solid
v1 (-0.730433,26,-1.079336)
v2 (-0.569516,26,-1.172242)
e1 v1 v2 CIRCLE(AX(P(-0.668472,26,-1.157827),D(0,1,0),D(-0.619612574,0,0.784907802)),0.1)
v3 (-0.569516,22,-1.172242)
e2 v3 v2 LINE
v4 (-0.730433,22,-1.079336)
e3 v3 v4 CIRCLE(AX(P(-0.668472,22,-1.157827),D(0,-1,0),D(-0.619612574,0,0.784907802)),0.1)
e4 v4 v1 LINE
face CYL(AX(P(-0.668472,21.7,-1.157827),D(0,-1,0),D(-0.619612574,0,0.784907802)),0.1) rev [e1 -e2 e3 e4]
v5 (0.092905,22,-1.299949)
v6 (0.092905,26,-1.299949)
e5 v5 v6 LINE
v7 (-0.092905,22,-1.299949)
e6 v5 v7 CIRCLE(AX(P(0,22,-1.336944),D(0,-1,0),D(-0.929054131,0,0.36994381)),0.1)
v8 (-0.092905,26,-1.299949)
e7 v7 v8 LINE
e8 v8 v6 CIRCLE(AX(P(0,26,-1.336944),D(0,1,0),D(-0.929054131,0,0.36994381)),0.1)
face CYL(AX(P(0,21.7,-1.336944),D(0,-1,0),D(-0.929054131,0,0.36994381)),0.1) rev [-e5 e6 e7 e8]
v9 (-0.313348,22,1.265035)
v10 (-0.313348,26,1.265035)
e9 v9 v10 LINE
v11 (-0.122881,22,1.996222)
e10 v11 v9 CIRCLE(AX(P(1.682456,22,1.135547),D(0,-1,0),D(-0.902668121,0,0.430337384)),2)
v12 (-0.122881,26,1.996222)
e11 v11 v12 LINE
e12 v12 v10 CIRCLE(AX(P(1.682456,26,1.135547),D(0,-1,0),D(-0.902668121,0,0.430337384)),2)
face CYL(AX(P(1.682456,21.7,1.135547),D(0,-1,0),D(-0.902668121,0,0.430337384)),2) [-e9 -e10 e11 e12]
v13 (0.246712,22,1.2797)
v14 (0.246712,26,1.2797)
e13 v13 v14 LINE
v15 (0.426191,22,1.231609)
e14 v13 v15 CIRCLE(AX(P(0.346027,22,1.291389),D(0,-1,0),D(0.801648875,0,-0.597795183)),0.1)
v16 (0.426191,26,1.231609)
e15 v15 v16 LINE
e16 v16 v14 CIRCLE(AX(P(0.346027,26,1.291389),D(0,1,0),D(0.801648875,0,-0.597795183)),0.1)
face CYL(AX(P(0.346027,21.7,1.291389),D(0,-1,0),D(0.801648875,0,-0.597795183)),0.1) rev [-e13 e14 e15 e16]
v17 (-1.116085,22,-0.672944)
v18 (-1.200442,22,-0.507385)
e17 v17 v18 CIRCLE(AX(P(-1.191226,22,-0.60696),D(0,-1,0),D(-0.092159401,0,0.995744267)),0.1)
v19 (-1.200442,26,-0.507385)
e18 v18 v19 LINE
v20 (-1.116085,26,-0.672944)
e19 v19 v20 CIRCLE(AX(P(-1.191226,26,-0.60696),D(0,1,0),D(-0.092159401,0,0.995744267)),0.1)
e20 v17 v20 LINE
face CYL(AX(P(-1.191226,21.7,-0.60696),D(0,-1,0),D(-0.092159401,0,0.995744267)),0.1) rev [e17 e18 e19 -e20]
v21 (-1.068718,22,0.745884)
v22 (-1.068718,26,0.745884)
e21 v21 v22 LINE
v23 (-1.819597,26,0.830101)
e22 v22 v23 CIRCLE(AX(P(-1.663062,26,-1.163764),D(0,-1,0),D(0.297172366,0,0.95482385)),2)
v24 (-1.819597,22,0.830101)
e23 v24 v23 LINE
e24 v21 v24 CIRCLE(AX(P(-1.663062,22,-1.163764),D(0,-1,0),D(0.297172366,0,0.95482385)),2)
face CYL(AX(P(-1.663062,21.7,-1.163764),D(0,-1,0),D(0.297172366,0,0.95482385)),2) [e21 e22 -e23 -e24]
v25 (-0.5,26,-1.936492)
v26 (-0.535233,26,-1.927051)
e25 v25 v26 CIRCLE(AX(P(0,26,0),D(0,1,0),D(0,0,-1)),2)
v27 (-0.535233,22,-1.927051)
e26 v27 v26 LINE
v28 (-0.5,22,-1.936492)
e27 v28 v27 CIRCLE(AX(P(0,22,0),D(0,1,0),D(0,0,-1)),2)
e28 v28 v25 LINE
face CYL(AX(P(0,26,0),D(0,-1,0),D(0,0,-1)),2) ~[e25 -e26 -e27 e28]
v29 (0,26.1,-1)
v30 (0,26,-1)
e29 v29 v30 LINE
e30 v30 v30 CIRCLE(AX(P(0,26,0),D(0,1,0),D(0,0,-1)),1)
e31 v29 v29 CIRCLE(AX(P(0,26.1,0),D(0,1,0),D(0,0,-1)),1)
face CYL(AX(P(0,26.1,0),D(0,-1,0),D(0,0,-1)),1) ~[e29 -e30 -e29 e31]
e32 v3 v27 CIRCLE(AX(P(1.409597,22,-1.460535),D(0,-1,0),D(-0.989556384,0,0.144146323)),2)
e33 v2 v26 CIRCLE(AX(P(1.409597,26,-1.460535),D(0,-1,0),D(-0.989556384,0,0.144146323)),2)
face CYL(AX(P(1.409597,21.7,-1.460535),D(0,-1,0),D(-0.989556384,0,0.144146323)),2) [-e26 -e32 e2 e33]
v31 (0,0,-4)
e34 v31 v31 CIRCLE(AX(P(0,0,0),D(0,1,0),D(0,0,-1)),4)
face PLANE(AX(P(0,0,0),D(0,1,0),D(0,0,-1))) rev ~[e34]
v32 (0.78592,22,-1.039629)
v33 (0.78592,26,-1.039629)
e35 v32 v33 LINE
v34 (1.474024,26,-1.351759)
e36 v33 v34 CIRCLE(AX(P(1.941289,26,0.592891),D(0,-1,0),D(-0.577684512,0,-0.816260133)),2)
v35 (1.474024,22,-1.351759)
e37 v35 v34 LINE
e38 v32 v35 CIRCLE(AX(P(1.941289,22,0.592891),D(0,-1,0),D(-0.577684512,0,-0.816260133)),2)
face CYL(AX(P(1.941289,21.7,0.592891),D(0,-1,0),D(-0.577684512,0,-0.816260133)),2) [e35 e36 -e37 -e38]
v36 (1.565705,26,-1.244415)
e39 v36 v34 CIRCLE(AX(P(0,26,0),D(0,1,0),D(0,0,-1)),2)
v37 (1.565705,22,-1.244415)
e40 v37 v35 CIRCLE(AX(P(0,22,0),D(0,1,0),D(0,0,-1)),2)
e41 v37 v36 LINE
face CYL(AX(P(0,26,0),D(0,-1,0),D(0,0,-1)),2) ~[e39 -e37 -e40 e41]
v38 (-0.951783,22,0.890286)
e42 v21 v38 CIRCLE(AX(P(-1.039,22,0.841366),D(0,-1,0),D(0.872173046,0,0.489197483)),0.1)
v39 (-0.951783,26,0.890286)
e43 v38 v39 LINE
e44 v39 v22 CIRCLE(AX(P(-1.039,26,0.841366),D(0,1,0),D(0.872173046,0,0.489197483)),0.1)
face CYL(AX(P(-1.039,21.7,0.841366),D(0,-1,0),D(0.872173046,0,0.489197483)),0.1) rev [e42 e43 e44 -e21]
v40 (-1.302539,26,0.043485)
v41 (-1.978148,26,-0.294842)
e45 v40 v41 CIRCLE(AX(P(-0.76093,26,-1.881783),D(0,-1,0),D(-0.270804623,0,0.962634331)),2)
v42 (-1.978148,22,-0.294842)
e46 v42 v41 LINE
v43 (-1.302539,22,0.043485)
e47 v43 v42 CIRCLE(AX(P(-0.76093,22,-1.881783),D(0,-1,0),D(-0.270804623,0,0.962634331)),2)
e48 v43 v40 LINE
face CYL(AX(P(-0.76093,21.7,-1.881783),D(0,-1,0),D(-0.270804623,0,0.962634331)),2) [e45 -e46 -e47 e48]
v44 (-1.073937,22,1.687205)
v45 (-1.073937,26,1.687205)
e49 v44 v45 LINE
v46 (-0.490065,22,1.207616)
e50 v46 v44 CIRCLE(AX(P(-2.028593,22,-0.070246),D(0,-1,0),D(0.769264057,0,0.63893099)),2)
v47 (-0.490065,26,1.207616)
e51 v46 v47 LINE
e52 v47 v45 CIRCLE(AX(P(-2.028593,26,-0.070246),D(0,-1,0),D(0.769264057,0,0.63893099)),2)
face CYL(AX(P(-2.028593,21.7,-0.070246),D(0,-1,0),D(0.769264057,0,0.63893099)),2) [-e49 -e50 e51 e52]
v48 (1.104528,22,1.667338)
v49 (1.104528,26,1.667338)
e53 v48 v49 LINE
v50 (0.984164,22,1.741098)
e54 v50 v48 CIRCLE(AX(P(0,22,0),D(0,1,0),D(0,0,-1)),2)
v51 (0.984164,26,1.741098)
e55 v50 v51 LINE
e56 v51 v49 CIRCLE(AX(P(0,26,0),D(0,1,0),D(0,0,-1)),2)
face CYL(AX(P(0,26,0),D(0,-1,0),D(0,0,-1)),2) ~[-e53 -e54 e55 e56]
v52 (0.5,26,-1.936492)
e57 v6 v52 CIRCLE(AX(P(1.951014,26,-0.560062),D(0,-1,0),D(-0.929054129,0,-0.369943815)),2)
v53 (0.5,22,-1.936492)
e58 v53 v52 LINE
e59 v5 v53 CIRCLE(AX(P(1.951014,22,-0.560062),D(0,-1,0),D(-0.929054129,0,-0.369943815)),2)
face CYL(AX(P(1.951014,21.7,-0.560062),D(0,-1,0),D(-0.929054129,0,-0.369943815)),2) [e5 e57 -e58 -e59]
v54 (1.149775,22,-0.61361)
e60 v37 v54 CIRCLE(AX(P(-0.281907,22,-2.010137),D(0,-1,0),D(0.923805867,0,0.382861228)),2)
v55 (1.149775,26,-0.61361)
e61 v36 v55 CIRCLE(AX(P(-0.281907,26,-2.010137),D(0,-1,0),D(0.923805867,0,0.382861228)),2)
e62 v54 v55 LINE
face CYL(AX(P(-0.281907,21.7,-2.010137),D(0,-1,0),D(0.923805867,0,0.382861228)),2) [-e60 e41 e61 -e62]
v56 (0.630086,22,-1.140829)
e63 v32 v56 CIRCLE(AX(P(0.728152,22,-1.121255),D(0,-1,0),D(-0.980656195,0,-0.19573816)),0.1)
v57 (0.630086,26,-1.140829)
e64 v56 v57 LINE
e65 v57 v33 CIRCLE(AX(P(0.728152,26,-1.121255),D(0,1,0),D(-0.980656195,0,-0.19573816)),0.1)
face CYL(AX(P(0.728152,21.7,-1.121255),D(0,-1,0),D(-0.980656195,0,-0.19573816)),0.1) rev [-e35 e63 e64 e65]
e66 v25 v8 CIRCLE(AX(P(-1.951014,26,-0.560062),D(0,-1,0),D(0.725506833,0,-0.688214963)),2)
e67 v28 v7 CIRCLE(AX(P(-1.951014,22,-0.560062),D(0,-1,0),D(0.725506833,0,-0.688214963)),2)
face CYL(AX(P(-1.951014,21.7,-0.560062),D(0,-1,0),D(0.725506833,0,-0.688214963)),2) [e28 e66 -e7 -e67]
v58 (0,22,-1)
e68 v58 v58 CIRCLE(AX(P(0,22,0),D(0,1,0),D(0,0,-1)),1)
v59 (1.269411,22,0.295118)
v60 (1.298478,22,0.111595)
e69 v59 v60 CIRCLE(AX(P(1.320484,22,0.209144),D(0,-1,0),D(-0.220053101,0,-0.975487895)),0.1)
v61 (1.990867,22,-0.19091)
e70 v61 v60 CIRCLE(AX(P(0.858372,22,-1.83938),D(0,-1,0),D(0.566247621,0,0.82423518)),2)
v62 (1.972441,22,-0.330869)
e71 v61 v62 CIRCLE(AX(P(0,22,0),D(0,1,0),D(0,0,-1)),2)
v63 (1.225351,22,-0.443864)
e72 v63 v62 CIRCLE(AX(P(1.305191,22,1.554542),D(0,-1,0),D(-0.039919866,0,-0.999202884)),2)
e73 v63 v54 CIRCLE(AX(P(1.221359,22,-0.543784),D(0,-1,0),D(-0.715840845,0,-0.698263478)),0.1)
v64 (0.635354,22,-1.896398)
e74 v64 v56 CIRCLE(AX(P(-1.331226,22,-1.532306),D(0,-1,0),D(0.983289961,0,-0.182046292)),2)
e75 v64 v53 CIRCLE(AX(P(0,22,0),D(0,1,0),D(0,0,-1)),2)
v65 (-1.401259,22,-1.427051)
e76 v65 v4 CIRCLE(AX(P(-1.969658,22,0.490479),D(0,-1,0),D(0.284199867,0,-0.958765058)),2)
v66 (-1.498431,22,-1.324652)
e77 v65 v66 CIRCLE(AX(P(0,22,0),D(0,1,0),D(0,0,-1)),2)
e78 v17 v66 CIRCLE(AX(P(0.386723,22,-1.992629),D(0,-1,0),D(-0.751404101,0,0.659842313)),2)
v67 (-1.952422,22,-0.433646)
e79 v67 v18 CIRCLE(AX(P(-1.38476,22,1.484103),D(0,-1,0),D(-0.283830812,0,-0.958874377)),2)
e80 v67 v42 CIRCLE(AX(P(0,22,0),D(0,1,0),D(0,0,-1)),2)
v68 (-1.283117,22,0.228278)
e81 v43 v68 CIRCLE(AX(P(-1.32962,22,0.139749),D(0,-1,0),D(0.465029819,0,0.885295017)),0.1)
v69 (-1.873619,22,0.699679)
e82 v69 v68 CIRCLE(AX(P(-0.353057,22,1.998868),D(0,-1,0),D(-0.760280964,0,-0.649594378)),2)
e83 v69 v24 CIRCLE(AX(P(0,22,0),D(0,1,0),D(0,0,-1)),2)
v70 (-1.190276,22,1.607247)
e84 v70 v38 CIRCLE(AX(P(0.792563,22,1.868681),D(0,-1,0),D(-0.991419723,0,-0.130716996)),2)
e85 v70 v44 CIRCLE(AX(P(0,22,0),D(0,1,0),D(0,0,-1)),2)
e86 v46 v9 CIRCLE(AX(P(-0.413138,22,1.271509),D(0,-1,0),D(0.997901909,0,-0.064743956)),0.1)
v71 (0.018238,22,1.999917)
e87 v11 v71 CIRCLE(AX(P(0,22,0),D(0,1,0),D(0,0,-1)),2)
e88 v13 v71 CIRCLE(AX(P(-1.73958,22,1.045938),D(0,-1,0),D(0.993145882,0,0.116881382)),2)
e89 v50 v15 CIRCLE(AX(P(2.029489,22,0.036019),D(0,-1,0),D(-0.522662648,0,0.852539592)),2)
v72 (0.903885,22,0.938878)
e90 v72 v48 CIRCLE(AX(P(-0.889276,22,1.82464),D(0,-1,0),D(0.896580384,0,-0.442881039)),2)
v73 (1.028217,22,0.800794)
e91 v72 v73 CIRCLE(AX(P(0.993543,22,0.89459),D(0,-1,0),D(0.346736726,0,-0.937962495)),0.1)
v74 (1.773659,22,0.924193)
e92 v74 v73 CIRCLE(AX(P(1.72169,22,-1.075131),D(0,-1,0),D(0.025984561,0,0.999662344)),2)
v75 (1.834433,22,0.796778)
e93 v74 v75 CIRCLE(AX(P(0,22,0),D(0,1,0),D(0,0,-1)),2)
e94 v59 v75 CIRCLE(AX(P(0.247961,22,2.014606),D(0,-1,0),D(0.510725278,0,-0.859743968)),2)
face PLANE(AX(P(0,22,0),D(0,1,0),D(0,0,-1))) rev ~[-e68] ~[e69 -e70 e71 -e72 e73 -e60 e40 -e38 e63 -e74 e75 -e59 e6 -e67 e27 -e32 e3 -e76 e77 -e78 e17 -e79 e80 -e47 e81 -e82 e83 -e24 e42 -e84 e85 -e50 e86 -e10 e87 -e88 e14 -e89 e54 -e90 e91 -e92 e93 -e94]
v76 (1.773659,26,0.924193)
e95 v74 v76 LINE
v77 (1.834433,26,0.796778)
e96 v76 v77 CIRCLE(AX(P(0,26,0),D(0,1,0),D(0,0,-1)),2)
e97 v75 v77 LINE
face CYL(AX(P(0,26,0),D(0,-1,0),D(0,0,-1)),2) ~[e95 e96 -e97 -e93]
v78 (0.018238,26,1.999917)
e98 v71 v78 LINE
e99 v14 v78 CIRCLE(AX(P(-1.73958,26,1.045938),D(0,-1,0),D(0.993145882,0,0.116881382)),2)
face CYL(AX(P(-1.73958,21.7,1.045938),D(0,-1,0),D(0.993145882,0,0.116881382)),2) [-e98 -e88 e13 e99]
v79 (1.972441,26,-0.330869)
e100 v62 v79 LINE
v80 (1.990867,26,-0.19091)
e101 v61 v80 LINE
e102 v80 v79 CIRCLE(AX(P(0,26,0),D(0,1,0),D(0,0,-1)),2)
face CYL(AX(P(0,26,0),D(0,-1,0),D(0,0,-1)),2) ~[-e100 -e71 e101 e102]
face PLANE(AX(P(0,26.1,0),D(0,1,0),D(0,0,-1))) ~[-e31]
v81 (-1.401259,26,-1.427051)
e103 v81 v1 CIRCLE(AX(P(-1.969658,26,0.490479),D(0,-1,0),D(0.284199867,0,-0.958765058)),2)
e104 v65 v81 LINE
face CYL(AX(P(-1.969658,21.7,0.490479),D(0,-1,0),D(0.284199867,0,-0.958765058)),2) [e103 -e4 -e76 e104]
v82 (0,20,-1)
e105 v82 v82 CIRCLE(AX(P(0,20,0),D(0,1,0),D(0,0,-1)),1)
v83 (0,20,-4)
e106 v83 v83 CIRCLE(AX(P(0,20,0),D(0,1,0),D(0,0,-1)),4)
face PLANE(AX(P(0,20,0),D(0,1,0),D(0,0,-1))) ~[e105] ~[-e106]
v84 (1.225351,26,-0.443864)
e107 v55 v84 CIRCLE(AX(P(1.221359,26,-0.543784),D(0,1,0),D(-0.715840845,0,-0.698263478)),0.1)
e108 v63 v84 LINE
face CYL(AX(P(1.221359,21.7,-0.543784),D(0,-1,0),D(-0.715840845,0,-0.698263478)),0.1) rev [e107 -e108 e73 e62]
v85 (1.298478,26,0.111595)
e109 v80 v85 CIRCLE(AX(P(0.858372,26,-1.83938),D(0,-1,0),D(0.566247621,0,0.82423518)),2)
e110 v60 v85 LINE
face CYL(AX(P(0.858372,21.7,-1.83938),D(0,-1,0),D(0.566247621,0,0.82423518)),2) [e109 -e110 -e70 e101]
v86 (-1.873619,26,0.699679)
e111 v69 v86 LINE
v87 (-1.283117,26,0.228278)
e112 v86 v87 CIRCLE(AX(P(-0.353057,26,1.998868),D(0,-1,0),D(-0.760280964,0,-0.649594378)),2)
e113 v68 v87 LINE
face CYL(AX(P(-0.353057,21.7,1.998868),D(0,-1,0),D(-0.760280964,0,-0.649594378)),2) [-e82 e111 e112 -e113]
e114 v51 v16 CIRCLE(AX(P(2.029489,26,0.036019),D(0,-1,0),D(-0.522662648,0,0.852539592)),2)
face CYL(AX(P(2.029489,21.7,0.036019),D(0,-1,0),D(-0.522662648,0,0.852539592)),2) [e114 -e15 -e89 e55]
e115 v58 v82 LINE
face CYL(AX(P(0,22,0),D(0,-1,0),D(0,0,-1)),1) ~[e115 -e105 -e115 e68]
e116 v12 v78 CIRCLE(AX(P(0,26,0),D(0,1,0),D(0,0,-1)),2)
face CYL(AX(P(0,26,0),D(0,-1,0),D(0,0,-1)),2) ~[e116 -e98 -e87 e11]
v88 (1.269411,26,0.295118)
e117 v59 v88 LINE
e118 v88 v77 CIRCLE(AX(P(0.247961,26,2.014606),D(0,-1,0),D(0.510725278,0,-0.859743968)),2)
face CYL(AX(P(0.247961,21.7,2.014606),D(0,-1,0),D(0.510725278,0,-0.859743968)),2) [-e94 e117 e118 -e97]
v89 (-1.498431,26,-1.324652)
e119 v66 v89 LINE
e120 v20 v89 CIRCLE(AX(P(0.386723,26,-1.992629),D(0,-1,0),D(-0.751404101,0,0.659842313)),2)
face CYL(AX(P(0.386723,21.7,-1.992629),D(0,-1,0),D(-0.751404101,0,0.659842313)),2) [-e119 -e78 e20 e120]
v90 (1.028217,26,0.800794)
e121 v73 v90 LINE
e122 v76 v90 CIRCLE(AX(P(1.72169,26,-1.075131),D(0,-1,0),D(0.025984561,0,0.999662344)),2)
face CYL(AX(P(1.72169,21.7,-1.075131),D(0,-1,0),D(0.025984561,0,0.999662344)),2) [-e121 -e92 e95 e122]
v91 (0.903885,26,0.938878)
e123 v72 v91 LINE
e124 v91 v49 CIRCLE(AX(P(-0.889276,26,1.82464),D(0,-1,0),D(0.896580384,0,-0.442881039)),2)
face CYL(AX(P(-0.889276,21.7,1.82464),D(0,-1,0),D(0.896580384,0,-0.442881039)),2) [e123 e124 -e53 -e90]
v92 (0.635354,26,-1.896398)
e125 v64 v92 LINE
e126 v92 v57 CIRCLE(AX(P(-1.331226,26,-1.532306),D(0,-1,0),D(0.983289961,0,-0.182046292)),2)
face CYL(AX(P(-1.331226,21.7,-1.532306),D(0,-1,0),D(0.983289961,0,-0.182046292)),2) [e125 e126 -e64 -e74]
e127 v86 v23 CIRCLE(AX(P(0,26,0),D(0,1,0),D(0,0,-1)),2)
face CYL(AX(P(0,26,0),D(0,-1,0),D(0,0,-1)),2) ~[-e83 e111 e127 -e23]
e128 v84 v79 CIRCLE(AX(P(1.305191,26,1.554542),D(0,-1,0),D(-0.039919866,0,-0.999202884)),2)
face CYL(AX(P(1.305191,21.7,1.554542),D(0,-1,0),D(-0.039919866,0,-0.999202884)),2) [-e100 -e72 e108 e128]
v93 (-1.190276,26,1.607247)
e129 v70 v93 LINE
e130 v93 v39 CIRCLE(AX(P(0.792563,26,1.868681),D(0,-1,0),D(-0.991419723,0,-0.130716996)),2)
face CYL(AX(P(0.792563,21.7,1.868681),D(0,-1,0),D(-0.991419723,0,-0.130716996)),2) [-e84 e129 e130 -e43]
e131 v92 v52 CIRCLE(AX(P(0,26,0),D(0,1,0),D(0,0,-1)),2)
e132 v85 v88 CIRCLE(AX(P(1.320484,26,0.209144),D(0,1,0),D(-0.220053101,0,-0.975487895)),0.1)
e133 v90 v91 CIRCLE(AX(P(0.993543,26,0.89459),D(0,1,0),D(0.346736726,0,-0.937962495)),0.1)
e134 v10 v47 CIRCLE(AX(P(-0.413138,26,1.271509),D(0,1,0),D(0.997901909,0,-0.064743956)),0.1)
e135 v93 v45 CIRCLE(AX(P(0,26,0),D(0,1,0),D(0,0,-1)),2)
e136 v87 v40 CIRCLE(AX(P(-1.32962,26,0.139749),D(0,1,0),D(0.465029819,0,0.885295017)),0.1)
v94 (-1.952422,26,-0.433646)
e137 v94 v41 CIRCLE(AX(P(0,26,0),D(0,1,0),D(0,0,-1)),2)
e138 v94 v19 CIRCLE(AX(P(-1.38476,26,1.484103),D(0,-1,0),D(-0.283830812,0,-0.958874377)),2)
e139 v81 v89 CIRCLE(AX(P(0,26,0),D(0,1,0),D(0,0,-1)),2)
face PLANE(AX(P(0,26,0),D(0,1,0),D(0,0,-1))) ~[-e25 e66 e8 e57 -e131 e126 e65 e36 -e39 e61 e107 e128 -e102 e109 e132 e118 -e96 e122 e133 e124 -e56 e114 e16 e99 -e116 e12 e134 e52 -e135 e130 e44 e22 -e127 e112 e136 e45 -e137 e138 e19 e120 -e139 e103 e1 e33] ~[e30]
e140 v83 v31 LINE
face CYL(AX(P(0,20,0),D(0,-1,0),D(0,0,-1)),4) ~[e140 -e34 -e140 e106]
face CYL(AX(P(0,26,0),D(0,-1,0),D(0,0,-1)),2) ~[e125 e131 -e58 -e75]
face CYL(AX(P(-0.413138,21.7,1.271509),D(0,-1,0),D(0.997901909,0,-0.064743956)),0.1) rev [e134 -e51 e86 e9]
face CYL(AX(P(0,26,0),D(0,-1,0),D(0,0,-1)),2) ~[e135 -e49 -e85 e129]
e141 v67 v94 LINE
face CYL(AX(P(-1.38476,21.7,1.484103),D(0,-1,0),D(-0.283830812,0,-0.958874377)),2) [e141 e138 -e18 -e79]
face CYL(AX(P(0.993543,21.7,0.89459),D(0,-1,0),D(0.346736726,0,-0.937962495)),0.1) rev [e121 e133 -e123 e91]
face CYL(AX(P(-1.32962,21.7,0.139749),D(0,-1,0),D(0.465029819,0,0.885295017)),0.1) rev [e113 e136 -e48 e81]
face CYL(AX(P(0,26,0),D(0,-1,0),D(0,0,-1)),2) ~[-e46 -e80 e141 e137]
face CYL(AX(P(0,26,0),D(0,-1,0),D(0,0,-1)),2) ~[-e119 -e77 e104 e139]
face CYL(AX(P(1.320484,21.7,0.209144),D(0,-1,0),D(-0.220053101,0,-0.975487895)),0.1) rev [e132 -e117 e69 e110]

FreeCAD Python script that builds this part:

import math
import FreeCAD as App
import Part
import Sketcher
from FreeCAD import Vector


def add_polygon(sketch, points):
    """Adds a closed chain of lines whose ends are joined by coincident constraints."""
    first, n = sketch.GeometryCount, len(points)
    for a, b in zip(points, points[1:] + points[:1]):
        sketch.addGeometry(Part.LineSegment(App.Vector(*a, 0), App.Vector(*b, 0)), False)
    for i in range(n):
        sketch.addConstraint(Sketcher.Constraint("Coincident", first + i, 2, first + (i + 1) % n, 1))

doc = App.newDocument("Part")
body = doc.addObject("PartDesign::Body", "Body")

sketch1 = doc.addObject("Sketcher::SketchObject", "Sketch")
body.addObject(sketch1)
sketch1.AttachmentSupport = (doc.XY_Plane, [""])
sketch1.MapMode = "FlatFace"
add_polygon(sketch1, [(0, 26.1), (0, 0), (4, 0), (4, 20), (1, 20), (1, 22), (2, 22), (2, 26), (1, 26), (1, 26.1)])
sketch1.addConstraint([
    Sketcher.Constraint("Vertical", 0),
    Sketcher.Constraint("Horizontal", 1),
    Sketcher.Constraint("Vertical", 2),
    Sketcher.Constraint("Horizontal", 3),
    Sketcher.Constraint("Vertical", 4),
    Sketcher.Constraint("Horizontal", 5),
    Sketcher.Constraint("Vertical", 6),
    Sketcher.Constraint("Horizontal", 7),
    Sketcher.Constraint("Vertical", 8),
    Sketcher.Constraint("Horizontal", 9),
    Sketcher.Constraint("Coincident", 0, 2, -1, 1),
    Sketcher.Constraint("Vertical", 4, 2, 7, 2),
    Sketcher.Constraint("Equal", 7, 9),
    Sketcher.Constraint("Equal", 1, 6),
    Sketcher.Constraint("DistanceX", 1, 1, 1, 2, 4.0),
    Sketcher.Constraint("DistanceX", 3, 2, 3, 1, 3.0),
    Sketcher.Constraint("DistanceY", 2, 1, 2, 2, 20.0),
    Sketcher.Constraint("DistanceY", 4, 1, 4, 2, 2.0),
    Sketcher.Constraint("DistanceY", 0, 2, 0, 1, 26.1),
])
revolution = doc.addObject("PartDesign::Revolution", "Revolution")
body.addObject(revolution)
revolution.Profile = sketch1
revolution.ReferenceAxis = (sketch1, ["V_Axis"])
revolution.Angle = 360

sketch2 = doc.addObject("Sketcher::SketchObject", "Sketch001")
body.addObject(sketch2)
sketch2.AttachmentSupport = (doc.XZ_Plane, [""])
sketch2.MapMode = "FlatFace"
sketch2.AttachmentOffset = App.Placement(Vector(0, 0, -21.7), App.Rotation())
sketch2.addGeometry([
    Part.ArcOfCircle(Part.Circle(Vector(1.95, -0.56, 0), Vector(0, 0, 1), 2), math.radians(-158), math.radians(-137)),
    Part.ArcOfCircle(Part.Circle(Vector(0, 0, 0), Vector(0, 0, 1), 2), math.radians(-104), math.radians(-76)),
    Part.ArcOfCircle(Part.Circle(Vector(-1.95, -0.56, 0), Vector(0, 0, 1), 2), math.radians(-43), math.radians(-22)),
    Part.ArcOfCircle(Part.Circle(Vector(0, -1.34, 0), Vector(0, 0, 1), 0.1), math.radians(22), math.radians(158)),
], False)
sketch2.addConstraint([
    Sketcher.Constraint("Coincident", 0, 2, 1, 2),
    Sketcher.Constraint("Coincident", 1, 1, 2, 1),
    Sketcher.Constraint("Tangent", 2, 2, 3, 2),
    Sketcher.Constraint("Tangent", 3, 1, 0, 1),
    Sketcher.Constraint("Coincident", 1, 3, -1, 1),
    Sketcher.Constraint("Equal", 0, 1),
    Sketcher.Constraint("Equal", 1, 2),
    Sketcher.Constraint("Symmetric", 0, 3, 2, 3, -2),
    Sketcher.Constraint("Radius", 0, 2.0),
    Sketcher.Constraint("Radius", 3, 0.1),
    Sketcher.Constraint("DistanceX", 1, 1, 0, 2, 1.0),
    Sketcher.Constraint("DistanceY", 0, 3, -1, 1, 0.560062),
])
pocket1 = doc.addObject("PartDesign::Pocket", "Pocket")
body.addObject(pocket1)
pocket1.Profile = sketch2
pocket1.Length = 4.3
doc.recompute()

polarpattern = doc.addObject("PartDesign::PolarPattern", "PolarPattern")
body.addObject(polarpattern)
polarpattern.Originals = [pocket1]
polarpattern.Axis = (doc.Y_Axis, [""])
polarpattern.Angle = 330
polarpattern.Occurrences = 11
polarpattern.Reversed = True
body.Tip = polarpattern

doc.recompute()
